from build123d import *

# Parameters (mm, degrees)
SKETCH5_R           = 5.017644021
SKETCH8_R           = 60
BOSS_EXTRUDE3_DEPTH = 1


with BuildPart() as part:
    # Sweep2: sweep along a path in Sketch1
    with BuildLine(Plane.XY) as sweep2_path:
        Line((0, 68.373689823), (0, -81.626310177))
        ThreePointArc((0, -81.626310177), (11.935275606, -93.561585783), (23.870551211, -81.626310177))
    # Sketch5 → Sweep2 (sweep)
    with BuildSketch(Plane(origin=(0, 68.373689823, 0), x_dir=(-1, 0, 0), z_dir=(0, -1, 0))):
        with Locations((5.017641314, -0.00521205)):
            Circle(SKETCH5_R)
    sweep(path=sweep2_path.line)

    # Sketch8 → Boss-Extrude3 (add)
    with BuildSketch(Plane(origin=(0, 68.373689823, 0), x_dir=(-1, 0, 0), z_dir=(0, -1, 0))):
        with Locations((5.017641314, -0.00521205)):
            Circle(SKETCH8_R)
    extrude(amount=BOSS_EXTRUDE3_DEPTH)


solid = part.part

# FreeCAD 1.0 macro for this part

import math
import FreeCAD as App
import Part
import Sketcher
Q = App.Units.Quantity

doc = App.newDocument("Part")
params = doc.addObject("Spreadsheet::Sheet", "Params")
for row, (alias, value) in enumerate([
    ("sketch2_height", "150 mm"),
    ("sketch3_diameter", "120 mm"),
    ("pad1_length", "1 mm"),
], start=1):
    params.set(f"A{row}", alias)
    params.set(f"B{row}", "=" + value)
    params.setAlias(f"B{row}", alias)

body = doc.addObject("PartDesign::Body", "Body")

sketch1 = body.newObject("Sketcher::SketchObject", "Sketch")
sketch1.AttachmentSupport = (doc.getObject("XZ_Plane"), [""])
sketch1.MapMode = "FlatFace"
sketch1.AttachmentOffset = App.Placement(App.Vector(0, 0, -68.37369), App.Rotation())
sketch1.addGeometry(Part.Circle(App.Vector(-5, 0, 0), App.Vector(0, 0, 1), 5), False)
sketch1.addConstraint([
    Sketcher.Constraint("Diameter", 0, Q("10.035288 mm")),
    Sketcher.Constraint("DistanceX", 0, 3, -1, 1, Q("5.017641 mm")),
    Sketcher.Constraint("DistanceY", -1, 1, 0, 3, Q("0.005212 mm")),
])

sketch2 = body.newObject("Sketcher::SketchObject", "Sketch001")
sketch2.AttachmentSupport = (doc.getObject("XY_Plane"), [""])
sketch2.MapMode = "FlatFace"
sketch2.addGeometry([
    Part.LineSegment(App.Vector(0, 68, 0), App.Vector(0, -82, 0)),
    Part.ArcOfCircle(Part.Circle(App.Vector(12, -82, 0), App.Vector(0, 0, 1), 12), math.radians(180), math.radians(360)),
], False)
sketch2.addConstraint([
    Sketcher.Constraint("Tangent", 0, 2, 1, 1),
    Sketcher.Constraint("Vertical", 0),
    Sketcher.Constraint("PointOnObject", 0, 1, -2),
    Sketcher.Constraint("Horizontal", 0, 2, 1, 2),
    Sketcher.Constraint("DistanceY", 0, 2, 0, 1, Q("150 mm")),
    Sketcher.Constraint("Radius", 1, Q("11.935276 mm")),
    Sketcher.Constraint("DistanceY", 1, 3, -1, 1, Q("81.62631 mm")),
])
sketch2.setExpression("Constraints[4]", "Params.sketch2_height")
doc.recompute()

additivepipe = body.newObject("PartDesign::AdditivePipe", "AdditivePipe")
additivepipe.Profile = sketch1
additivepipe.Spine = (sketch2, ["Edge1", "Edge2"])

sketch3 = body.newObject("Sketcher::SketchObject", "Sketch002")
sketch3.AttachmentSupport = (doc.getObject("XZ_Plane"), [""])
sketch3.MapMode = "FlatFace"
sketch3.AttachmentOffset = App.Placement(App.Vector(0, 0, -68.37369), App.Rotation())
sketch3.addGeometry(Part.Circle(App.Vector(-5, 0, 0), App.Vector(0, 0, 1), 60), False)
sketch3.addConstraint([
    Sketcher.Constraint("Diameter", 0, Q("120 mm")),
    Sketcher.Constraint("DistanceX", 0, 3, -1, 1, Q("5.017641 mm")),
    Sketcher.Constraint("DistanceY", -1, 1, 0, 3, Q("0.005212 mm")),
])
sketch3.setExpression("Constraints[0]", "Params.sketch3_diameter")
pad1 = body.newObject("PartDesign::Pad", "Pad")
pad1.Profile = sketch3
pad1.setExpression("Length", "Params.pad1_length")

doc.recompute()
